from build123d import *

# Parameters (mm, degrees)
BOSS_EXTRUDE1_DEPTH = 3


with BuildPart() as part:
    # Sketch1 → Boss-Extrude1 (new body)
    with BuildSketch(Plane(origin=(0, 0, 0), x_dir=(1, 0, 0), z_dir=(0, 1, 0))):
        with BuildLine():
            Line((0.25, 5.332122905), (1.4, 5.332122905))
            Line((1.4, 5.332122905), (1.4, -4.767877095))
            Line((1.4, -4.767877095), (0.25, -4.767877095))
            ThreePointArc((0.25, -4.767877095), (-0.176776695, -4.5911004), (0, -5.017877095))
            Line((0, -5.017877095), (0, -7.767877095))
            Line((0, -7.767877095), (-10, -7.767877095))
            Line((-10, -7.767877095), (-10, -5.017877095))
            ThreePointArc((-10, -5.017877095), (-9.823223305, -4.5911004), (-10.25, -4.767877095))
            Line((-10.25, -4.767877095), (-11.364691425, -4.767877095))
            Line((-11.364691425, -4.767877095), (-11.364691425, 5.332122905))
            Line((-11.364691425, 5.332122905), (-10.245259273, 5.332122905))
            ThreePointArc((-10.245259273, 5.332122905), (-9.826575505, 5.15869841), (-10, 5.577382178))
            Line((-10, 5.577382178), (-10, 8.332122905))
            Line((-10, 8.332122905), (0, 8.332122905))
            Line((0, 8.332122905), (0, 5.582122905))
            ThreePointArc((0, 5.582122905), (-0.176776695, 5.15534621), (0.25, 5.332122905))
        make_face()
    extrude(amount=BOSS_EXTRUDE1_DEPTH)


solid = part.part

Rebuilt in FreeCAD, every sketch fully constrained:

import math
import FreeCAD as App
import Part
import Sketcher
Q = App.Units.Quantity

doc = App.newDocument("Part")
body = doc.addObject("PartDesign::Body", "Body")

# Sketch on XZ plane
sketch1 = doc.addObject("Sketcher::SketchObject", "Sketch")
body.addObject(sketch1)
sketch1.AttachmentSupport = (doc.XZ_Plane, [""])
sketch1.MapMode = "FlatFace"
sketch1.addGeometry([
    Part.LineSegment(App.Vector(1.4, -5.33, 0), App.Vector(0.25, -5.33, 0)),  # 0
    Part.ArcOfCircle(Part.Circle(App.Vector(0, -5.33, 0), App.Vector(0, 0, 1), 0.25), math.radians(0), math.radians(270)),  # 1
    Part.LineSegment(App.Vector(0, -5.58, 0), App.Vector(0, -8.33, 0)),  # 2
    Part.LineSegment(App.Vector(0, -8.33, 0), App.Vector(-10, -8.33, 0)),  # 3
    Part.LineSegment(App.Vector(-10, -8.33, 0), App.Vector(-10, -5.58, 0)),  # 4
    Part.ArcOfCircle(Part.Circle(App.Vector(-10, -5.33, 0), App.Vector(0, 0, 1), 0.25), math.radians(-90), math.radians(180)),  # 5
    Part.LineSegment(App.Vector(-10.25, -5.33, 0), App.Vector(-11.36, -5.33, 0)),  # 6
    Part.LineSegment(App.Vector(-11.36, -5.33, 0), App.Vector(-11.36, 4.77, 0)),  # 7
    Part.LineSegment(App.Vector(-11.36, 4.77, 0), App.Vector(-10.25, 4.77, 0)),  # 8
    Part.ArcOfCircle(Part.Circle(App.Vector(-10, 4.77, 0), App.Vector(0, 0, 1), 0.25), math.radians(180), math.radians(450)),  # 9
    Part.LineSegment(App.Vector(-10, 5.02, 0), App.Vector(-10, 7.77, 0)),  # 10
    Part.LineSegment(App.Vector(-10, 7.77, 0), App.Vector(0, 7.77, 0)),  # 11
    Part.LineSegment(App.Vector(0, 7.77, 0), App.Vector(0, 5.02, 0)),  # 12
    Part.ArcOfCircle(Part.Circle(App.Vector(0, 4.77, 0), App.Vector(0, 0, 1), 0.25), math.radians(90), math.radians(360)),  # 13
    Part.LineSegment(App.Vector(0.25, 4.77, 0), App.Vector(1.4, 4.77, 0)),  # 14
    Part.LineSegment(App.Vector(1.4, 4.77, 0), App.Vector(1.4, -5.33, 0)),  # 15
], False)
sketch1.addConstraint([
    Sketcher.Constraint("Coincident", 0, 2, 1, 1),
    Sketcher.Constraint("Coincident", 1, 2, 2, 1),
    Sketcher.Constraint("Coincident", 2, 2, 3, 1),
    Sketcher.Constraint("Coincident", 3, 2, 4, 1),
    Sketcher.Constraint("Coincident", 4, 2, 5, 1),
    Sketcher.Constraint("Coincident", 5, 2, 6, 1),
    Sketcher.Constraint("Coincident", 6, 2, 7, 1),
    Sketcher.Constraint("Coincident", 7, 2, 8, 1),
    Sketcher.Constraint("Coincident", 8, 2, 9, 1),
    Sketcher.Constraint("Coincident", 9, 2, 10, 1),
    Sketcher.Constraint("Coincident", 10, 2, 11, 1),
    Sketcher.Constraint("Coincident", 11, 2, 12, 1),
    Sketcher.Constraint("Coincident", 12, 2, 13, 1),
    Sketcher.Constraint("Coincident", 13, 2, 14, 1),
    Sketcher.Constraint("Coincident", 14, 2, 15, 1),
    Sketcher.Constraint("Coincident", 15, 2, 0, 1),
    Sketcher.Constraint("Horizontal", 0),
    Sketcher.Constraint("Vertical", 2),
    Sketcher.Constraint("Horizontal", 3),
    Sketcher.Constraint("Vertical", 4),
    Sketcher.Constraint("Horizontal", 6),
    Sketcher.Constraint("Vertical", 7),
    Sketcher.Constraint("Horizontal", 8),
    Sketcher.Constraint("Vertical", 10),
    Sketcher.Constraint("Horizontal", 11),
    Sketcher.Constraint("Vertical", 12),
    Sketcher.Constraint("Horizontal", 14),
    Sketcher.Constraint("Vertical", 15),
    Sketcher.Constraint("Equal", 1, 9),
    Sketcher.Constraint("Equal", 9, 13),
    Sketcher.Constraint("PointOnObject", 1, 3, -2),
    Sketcher.Constraint("PointOnObject", 13, 3, -2),
    Sketcher.Constraint("PointOnObject", 1, 2, -2),
    Sketcher.Constraint("PointOnObject", 11, 2, -2),
    Sketcher.Constraint("Horizontal", 1, 3, 5, 3),
    Sketcher.Constraint("Horizontal", 9, 3, 13, 3),
    Sketcher.Constraint("Horizontal", 5, 3, 0, 2),
    Sketcher.Constraint("Horizontal", 0, 2, 5, 2),
    Sketcher.Constraint("Horizontal", 13, 3, 7, 2),
    Sketcher.Constraint("Horizontal", 8, 2, 13, 2),
    Sketcher.Constraint("Vertical", 5, 3, 9, 3),
    Sketcher.Constraint("Vertical", 9, 3, 3, 2),
    Sketcher.Constraint("Vertical", 4, 2, 9, 2),
    Sketcher.Constraint("Equal", 2, 10),
    Sketcher.Constraint("DistanceX", 3, 2, 3, 1, Q("10 mm")),
    Sketcher.Constraint("Radius", 1, Q("0.25 mm")),
    Sketcher.Constraint("DistanceY", 7, 1, 7, 2, Q("10.1 mm")),
    Sketcher.Constraint("DistanceY", 2, 2, 1, 3, Q("3 mm")),
    Sketcher.Constraint("DistanceX", 0, 2, 0, 1, Q("1.15 mm")),
    Sketcher.Constraint("Radius", 5, Q("0.245259 mm")),
    Sketcher.Constraint("DistanceX", 8, 1, 8, 2, Q("1.114691 mm")),
    Sketcher.Constraint("DistanceY", 1, 3, -1, 1, Q("5.332123 mm")),
])
pad1 = doc.addObject("PartDesign::Pad", "Pad")
body.addObject(pad1)
pad1.Profile = sketch1
pad1.Length = 3
pad1.Reversed = True

doc.recompute()
